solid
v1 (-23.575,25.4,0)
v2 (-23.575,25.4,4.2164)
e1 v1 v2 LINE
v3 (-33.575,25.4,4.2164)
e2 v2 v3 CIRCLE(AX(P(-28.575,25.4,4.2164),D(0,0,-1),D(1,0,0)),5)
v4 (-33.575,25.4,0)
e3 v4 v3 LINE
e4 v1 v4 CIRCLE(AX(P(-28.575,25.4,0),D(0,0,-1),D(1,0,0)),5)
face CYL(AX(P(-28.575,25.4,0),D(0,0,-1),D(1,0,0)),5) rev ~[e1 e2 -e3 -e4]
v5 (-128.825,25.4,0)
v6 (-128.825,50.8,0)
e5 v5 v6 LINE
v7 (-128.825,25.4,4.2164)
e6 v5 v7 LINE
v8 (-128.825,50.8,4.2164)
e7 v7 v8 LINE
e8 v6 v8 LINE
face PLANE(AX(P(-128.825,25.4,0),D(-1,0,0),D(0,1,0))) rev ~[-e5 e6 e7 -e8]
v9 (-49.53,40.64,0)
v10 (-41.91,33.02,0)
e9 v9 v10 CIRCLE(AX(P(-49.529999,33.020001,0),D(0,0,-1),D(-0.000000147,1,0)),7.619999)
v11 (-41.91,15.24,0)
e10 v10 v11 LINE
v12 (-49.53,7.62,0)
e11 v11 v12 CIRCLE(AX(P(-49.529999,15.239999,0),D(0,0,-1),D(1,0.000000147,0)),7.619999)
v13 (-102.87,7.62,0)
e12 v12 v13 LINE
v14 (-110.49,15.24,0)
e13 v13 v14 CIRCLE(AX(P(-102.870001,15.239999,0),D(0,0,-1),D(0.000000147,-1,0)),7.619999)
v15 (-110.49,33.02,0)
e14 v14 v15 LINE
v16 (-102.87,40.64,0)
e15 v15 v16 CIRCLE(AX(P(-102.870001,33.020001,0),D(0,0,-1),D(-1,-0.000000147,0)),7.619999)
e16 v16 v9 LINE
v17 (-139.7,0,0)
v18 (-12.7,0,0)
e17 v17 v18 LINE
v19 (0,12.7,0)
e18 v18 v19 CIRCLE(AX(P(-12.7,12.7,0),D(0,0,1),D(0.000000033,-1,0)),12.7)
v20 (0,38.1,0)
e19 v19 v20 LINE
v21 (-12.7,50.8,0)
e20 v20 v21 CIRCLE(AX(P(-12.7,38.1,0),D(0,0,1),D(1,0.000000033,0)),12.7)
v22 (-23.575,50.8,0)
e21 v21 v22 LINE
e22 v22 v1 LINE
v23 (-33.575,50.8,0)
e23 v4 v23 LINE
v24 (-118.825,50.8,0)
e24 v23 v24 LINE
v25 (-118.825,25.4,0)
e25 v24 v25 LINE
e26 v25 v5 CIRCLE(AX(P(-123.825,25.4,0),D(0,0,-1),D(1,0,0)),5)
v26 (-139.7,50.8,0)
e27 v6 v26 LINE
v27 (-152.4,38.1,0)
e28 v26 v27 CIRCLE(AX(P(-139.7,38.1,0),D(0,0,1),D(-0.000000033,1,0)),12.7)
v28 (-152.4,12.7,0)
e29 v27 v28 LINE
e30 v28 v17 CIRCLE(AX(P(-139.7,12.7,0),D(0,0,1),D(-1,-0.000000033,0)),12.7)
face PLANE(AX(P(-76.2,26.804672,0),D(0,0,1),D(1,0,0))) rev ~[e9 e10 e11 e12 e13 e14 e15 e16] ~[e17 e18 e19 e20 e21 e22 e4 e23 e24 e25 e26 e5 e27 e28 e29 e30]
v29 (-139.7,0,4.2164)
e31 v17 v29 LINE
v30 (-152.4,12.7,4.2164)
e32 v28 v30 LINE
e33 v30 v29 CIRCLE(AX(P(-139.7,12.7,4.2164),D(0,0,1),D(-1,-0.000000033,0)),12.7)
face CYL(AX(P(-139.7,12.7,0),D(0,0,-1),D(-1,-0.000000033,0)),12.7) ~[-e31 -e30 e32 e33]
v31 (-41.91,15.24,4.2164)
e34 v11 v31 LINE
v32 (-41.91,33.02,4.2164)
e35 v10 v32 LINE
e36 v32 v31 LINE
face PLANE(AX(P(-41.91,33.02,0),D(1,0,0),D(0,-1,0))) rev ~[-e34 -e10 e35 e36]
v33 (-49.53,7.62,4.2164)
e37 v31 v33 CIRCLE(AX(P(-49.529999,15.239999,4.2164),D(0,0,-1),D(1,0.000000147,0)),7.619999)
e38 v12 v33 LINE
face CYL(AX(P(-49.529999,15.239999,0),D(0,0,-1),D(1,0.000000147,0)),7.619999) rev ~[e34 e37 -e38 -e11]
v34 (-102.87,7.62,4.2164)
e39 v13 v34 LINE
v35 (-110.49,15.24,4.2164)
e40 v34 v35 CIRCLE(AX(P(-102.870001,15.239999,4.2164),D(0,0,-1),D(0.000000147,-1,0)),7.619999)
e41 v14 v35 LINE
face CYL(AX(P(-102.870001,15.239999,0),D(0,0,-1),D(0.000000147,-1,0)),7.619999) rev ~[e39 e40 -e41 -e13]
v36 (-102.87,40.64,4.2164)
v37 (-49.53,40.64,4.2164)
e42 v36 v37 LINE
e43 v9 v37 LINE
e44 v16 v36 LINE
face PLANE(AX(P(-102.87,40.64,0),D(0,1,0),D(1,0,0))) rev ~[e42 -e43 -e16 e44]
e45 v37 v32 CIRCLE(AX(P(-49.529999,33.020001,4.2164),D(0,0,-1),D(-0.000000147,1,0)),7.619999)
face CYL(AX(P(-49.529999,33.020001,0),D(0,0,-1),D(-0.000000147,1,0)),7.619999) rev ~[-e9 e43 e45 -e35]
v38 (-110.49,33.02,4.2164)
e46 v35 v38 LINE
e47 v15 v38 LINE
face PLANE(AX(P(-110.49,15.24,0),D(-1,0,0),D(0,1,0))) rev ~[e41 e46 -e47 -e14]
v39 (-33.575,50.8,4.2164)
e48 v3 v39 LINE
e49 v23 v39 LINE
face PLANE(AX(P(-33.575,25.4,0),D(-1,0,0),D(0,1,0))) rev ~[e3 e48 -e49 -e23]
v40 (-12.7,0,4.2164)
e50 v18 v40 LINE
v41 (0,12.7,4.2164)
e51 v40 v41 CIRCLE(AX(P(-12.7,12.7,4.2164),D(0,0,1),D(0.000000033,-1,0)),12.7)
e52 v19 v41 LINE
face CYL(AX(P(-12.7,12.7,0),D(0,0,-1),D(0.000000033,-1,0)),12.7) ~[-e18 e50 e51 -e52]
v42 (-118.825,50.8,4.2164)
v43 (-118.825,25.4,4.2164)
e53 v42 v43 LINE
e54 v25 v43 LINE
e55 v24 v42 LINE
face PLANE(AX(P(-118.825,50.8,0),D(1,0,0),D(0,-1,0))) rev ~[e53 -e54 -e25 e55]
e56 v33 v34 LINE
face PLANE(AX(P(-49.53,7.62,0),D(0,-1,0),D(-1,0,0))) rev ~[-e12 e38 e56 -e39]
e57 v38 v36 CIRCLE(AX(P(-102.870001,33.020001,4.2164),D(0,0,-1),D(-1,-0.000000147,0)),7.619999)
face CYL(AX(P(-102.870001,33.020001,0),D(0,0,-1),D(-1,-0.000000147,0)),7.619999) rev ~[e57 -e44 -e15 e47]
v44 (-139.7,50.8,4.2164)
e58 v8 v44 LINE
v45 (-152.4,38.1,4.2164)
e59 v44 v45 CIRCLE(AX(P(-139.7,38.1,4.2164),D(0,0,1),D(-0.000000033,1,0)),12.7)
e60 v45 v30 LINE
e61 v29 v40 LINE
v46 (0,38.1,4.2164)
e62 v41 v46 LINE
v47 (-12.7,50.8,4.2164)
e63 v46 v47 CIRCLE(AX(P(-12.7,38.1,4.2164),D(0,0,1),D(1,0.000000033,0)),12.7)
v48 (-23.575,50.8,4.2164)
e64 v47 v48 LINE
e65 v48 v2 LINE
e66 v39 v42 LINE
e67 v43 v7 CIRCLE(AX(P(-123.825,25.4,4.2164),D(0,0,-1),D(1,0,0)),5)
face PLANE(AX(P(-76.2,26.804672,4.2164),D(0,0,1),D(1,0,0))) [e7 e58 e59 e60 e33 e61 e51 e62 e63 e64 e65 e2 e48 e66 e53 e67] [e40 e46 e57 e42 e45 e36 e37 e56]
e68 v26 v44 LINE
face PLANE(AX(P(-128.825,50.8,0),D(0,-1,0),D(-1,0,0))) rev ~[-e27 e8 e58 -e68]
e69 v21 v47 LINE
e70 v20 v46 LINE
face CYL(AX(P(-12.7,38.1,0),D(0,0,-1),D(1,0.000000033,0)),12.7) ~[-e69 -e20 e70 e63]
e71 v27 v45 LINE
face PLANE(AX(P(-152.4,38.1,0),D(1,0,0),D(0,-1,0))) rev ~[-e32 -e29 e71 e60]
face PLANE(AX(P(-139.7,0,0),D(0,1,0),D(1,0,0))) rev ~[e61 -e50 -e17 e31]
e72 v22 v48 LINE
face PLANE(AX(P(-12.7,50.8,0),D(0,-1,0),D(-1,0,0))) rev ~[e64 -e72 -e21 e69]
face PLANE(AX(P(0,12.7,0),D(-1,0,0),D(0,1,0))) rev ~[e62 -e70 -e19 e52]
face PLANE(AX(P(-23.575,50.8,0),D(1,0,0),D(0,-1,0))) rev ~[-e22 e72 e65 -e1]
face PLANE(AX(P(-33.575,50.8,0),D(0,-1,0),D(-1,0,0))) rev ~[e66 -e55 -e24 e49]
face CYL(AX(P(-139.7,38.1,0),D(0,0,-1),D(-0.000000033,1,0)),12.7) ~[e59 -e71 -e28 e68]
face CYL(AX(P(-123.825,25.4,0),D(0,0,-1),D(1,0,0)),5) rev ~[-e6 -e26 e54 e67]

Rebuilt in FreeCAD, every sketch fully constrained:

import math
import FreeCAD as App
import Part
import Sketcher
Q = App.Units.Quantity

doc = App.newDocument("Part")
body = doc.addObject("PartDesign::Body", "Body")

sketch1 = body.newObject("Sketcher::SketchObject", "Sketch")
sketch1.AttachmentSupport = (doc.getObject("XY_Plane"), [""])
sketch1.MapMode = "FlatFace"
sketch1.addGeometry([
    Part.LineSegment(App.Vector(-129, 51, 0), App.Vector(-140, 51, 0)),
    Part.ArcOfCircle(Part.Circle(App.Vector(-140, 38, 0), App.Vector(0, 0, 1), 13), math.radians(90), math.radians(180)),
    Part.LineSegment(App.Vector(-152, 38, 0), App.Vector(-152, 13, 0)),
    Part.ArcOfCircle(Part.Circle(App.Vector(-140, 13, 0), App.Vector(0, 0, 1), 13), math.radians(-180), math.radians(-90)),
    Part.LineSegment(App.Vector(-140, 0, 0), App.Vector(-13, 0, 0)),
    Part.ArcOfCircle(Part.Circle(App.Vector(-13, 13, 0), App.Vector(0, 0, 1), 13), math.radians(-90), math.radians(0)),
    Part.LineSegment(App.Vector(0, 13, 0), App.Vector(0, 38, 0)),
    Part.ArcOfCircle(Part.Circle(App.Vector(-13, 38, 0), App.Vector(0, 0, 1), 13), math.radians(0), math.radians(90)),
    Part.LineSegment(App.Vector(-13, 51, 0), App.Vector(-24, 51, 0)),
    Part.LineSegment(App.Vector(-24, 51, 0), App.Vector(-24, 25, 0)),
    Part.ArcOfCircle(Part.Circle(App.Vector(-29, 25, 0), App.Vector(0, 0, 1), 5), math.radians(180), math.radians(360)),
    Part.LineSegment(App.Vector(-34, 25, 0), App.Vector(-34, 51, 0)),
    Part.LineSegment(App.Vector(-34, 51, 0), App.Vector(-119, 51, 0)),
    Part.LineSegment(App.Vector(-119, 51, 0), App.Vector(-119, 25, 0)),
    Part.ArcOfCircle(Part.Circle(App.Vector(-124, 25, 0), App.Vector(0, 0, 1), 5), math.radians(180), math.radians(360)),
    Part.LineSegment(App.Vector(-129, 25, 0), App.Vector(-129, 51, 0)),
    Part.LineSegment(App.Vector(-110, 15, 0), App.Vector(-110, 33, 0)),
    Part.ArcOfCircle(Part.Circle(App.Vector(-103, 33, 0), App.Vector(0, 0, 1), 8), math.radians(90), math.radians(180)),
    Part.LineSegment(App.Vector(-103, 41, 0), App.Vector(-50, 41, 0)),
    Part.ArcOfCircle(Part.Circle(App.Vector(-50, 33, 0), App.Vector(0, 0, 1), 8), math.radians(0), math.radians(90)),
    Part.LineSegment(App.Vector(-42, 33, 0), App.Vector(-42, 15, 0)),
    Part.ArcOfCircle(Part.Circle(App.Vector(-50, 15, 0), App.Vector(0, 0, 1), 8), math.radians(-90), math.radians(0)),
    Part.LineSegment(App.Vector(-50, 8, 0), App.Vector(-103, 8, 0)),
    Part.ArcOfCircle(Part.Circle(App.Vector(-103, 15, 0), App.Vector(0, 0, 1), 8), math.radians(180), math.radians(270)),
], False)
sketch1.addConstraint([
    Sketcher.Constraint("Tangent", 0, 2, 1, 1),
    Sketcher.Constraint("Tangent", 1, 2, 2, 1),
    Sketcher.Constraint("Tangent", 2, 2, 3, 1),
    Sketcher.Constraint("Tangent", 3, 2, 4, 1),
    Sketcher.Constraint("Tangent", 4, 2, 5, 1),
    Sketcher.Constraint("Tangent", 5, 2, 6, 1),
    Sketcher.Constraint("Tangent", 6, 2, 7, 1),
    Sketcher.Constraint("Tangent", 7, 2, 8, 1),
    Sketcher.Constraint("Coincident", 8, 2, 9, 1),
    Sketcher.Constraint("Tangent", 9, 2, 10, 2),
    Sketcher.Constraint("Tangent", 10, 1, 11, 1),
    Sketcher.Constraint("Coincident", 11, 2, 12, 1),
    Sketcher.Constraint("Coincident", 12, 2, 13, 1),
    Sketcher.Constraint("Tangent", 13, 2, 14, 2),
    Sketcher.Constraint("Tangent", 14, 1, 15, 1),
    Sketcher.Constraint("Coincident", 15, 2, 0, 1),
    Sketcher.Constraint("Tangent", 16, 2, 17, 2),
    Sketcher.Constraint("Tangent", 17, 1, 18, 1),
    Sketcher.Constraint("Tangent", 18, 2, 19, 2),
    Sketcher.Constraint("Tangent", 19, 1, 20, 1),
    Sketcher.Constraint("Tangent", 20, 2, 21, 2),
    Sketcher.Constraint("Tangent", 21, 1, 22, 1),
    Sketcher.Constraint("Tangent", 22, 2, 23, 2),
    Sketcher.Constraint("Tangent", 23, 1, 16, 1),
    Sketcher.Constraint("Horizontal", 0),
    Sketcher.Constraint("Vertical", 2),
    Sketcher.Constraint("Horizontal", 4),
    Sketcher.Constraint("Vertical", 6),
    Sketcher.Constraint("Horizontal", 8),
    Sketcher.Constraint("Vertical", 9),
    Sketcher.Constraint("Vertical", 11),
    Sketcher.Constraint("Horizontal", 12),
    Sketcher.Constraint("Vertical", 13),
    Sketcher.Constraint("Vertical", 15),
    Sketcher.Constraint("Vertical", 16),
    Sketcher.Constraint("Horizontal", 18),
    Sketcher.Constraint("Vertical", 20),
    Sketcher.Constraint("Horizontal", 22),
    Sketcher.Constraint("Equal", 1, 3),
    Sketcher.Constraint("Equal", 3, 5),
    Sketcher.Constraint("Equal", 5, 7),
    Sketcher.Constraint("Equal", 10, 14),
    Sketcher.Constraint("Equal", 17, 19),
    Sketcher.Constraint("Equal", 19, 21),
    Sketcher.Constraint("Equal", 21, 23),
    Sketcher.Constraint("PointOnObject", 3, 2, -1),
    Sketcher.Constraint("PointOnObject", 5, 2, -2),
    Sketcher.Constraint("Horizontal", 1, 3, 7, 3),
    Sketcher.Constraint("Horizontal", 10, 3, 14, 3),
    Sketcher.Constraint("Horizontal", 8, 2, 11, 2),
    Sketcher.Constraint("Equal", 0, 8),
    Sketcher.Constraint("Equal", 6, 9),
    Sketcher.Constraint("Radius", 1, Q("0.5 in")),
    Sketcher.Constraint("Radius", 17, Q("0.3 in")),
    Sketcher.Constraint("DistanceX", 4, 1, 4, 2, Q("5 in")),
    Sketcher.Constraint("DistanceY", 2, 2, 2, 1, Q("1 in")),
    Sketcher.Constraint("DistanceX", 18, 1, 18, 2, Q("2.1 in")),
    Sketcher.Constraint("DistanceY", 16, 1, 16, 2, Q("0.7 in")),
    Sketcher.Constraint("DistanceY", -1, 1, 17, 3, Q("1.3 in")),
    Sketcher.Constraint("DistanceX", 17, 3, -1, 1, Q("4.05 in")),
    Sketcher.Constraint("Radius", 10, 5.0),
    Sketcher.Constraint("DistanceX", 14, 3, 10, 3, Q("3.75 in")),
])
pad1 = body.newObject("PartDesign::Pad", "Pad")
pad1.Profile = sketch1
pad1.Length = Q("0.166 in")

doc.recompute()
